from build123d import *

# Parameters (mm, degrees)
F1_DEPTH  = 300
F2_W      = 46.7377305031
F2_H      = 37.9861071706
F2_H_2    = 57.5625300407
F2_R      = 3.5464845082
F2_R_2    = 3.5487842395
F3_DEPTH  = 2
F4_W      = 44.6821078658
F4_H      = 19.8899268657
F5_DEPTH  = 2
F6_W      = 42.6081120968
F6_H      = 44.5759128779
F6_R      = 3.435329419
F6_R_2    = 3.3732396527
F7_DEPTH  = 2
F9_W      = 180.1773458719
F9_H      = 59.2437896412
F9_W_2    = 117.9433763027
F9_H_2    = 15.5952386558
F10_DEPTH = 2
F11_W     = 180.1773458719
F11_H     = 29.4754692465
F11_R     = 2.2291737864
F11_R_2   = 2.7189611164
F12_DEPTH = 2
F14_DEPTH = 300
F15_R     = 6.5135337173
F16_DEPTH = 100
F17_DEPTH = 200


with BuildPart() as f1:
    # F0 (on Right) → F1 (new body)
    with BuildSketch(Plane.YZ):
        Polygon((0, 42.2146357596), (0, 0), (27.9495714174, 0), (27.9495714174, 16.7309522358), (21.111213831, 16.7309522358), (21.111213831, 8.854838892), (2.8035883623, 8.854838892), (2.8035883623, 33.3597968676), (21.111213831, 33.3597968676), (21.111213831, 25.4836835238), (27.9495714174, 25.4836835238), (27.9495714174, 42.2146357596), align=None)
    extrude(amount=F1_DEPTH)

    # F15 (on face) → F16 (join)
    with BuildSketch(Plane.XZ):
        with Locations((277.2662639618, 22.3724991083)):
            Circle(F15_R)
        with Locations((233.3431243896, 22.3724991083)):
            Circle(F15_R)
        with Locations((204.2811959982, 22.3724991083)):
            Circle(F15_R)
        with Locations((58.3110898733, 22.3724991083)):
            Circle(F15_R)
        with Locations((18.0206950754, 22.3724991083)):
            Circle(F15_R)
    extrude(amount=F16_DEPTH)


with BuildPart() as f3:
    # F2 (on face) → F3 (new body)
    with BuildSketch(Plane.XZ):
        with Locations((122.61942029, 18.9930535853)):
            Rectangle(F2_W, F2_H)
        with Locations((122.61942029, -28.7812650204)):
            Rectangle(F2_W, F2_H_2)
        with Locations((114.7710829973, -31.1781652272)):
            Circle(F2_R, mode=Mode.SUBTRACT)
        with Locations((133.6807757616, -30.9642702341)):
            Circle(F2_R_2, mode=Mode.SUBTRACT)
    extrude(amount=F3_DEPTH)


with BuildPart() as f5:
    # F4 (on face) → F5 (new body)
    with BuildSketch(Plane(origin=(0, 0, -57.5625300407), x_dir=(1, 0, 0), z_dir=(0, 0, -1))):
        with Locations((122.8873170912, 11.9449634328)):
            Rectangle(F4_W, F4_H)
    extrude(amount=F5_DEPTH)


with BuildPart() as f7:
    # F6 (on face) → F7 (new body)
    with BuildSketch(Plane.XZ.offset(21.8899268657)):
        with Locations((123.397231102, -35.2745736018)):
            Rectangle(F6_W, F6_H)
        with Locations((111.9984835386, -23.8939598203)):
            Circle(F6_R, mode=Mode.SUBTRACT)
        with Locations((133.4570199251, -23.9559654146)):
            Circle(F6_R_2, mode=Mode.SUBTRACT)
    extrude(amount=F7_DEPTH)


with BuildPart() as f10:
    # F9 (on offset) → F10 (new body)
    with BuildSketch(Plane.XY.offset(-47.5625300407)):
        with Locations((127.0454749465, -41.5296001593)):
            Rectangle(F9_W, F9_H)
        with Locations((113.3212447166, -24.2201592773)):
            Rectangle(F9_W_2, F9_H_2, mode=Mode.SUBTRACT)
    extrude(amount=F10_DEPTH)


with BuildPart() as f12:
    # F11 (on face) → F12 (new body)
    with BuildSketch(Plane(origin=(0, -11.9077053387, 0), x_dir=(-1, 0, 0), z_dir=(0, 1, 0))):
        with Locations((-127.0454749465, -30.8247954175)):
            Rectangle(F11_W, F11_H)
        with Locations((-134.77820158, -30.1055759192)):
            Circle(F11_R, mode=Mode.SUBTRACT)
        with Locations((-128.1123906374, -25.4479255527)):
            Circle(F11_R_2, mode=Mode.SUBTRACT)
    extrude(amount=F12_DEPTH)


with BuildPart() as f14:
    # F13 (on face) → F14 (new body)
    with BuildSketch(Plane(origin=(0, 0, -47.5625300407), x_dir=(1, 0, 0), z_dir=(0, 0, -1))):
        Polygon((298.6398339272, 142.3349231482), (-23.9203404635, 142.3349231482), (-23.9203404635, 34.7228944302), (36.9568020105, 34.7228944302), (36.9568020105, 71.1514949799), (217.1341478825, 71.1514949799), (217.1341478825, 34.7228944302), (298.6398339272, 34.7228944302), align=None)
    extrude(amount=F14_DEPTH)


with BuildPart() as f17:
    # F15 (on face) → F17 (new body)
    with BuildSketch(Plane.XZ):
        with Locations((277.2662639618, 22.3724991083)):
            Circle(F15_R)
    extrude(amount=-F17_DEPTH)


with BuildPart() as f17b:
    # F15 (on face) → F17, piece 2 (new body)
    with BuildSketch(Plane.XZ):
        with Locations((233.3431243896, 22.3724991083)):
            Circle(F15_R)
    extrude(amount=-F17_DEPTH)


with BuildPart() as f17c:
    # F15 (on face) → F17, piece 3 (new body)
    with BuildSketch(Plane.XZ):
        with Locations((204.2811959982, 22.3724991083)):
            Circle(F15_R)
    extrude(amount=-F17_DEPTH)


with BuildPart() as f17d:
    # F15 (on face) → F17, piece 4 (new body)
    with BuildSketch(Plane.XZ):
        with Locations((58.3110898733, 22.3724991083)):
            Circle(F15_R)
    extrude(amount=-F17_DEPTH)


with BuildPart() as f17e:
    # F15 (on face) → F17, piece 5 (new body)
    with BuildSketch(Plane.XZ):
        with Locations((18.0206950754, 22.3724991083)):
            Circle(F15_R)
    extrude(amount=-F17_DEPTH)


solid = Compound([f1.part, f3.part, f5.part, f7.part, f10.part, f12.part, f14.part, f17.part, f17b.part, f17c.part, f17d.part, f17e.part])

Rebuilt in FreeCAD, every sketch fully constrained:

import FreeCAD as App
import Part
import Sketcher

V = App.Vector
Q = App.Units.Quantity


def add_polygon(sketch, points):
    """Adds a closed chain of lines whose ends are joined by coincident constraints."""
    first, n = sketch.GeometryCount, len(points)
    for a, b in zip(points, points[1:] + points[:1]):
        sketch.addGeometry(Part.LineSegment(App.Vector(*a, 0), App.Vector(*b, 0)), False)
    for i in range(n):
        sketch.addConstraint(Sketcher.Constraint("Coincident", first + i, 2, first + (i + 1) % n, 1))

doc = App.newDocument("Part")
body = doc.addObject("PartDesign::Body", "Body")

sketch1 = body.newObject("Sketcher::SketchObject", "Sketch")
sketch1.AttachmentSupport = (doc.getObject("YZ_Plane"), [""])
sketch1.MapMode = "FlatFace"
add_polygon(sketch1, [(0, 42), (0, 0), (28, 0), (28, 17), (21, 17), (21, 9), (3, 9), (3, 33), (21, 33), (21, 25), (28, 25), (28, 42)])
sketch1.addConstraint([
    Sketcher.Constraint("Vertical", 0),
    Sketcher.Constraint("Horizontal", 1),
    Sketcher.Constraint("Vertical", 2),
    Sketcher.Constraint("Horizontal", 3),
    Sketcher.Constraint("Vertical", 4),
    Sketcher.Constraint("Horizontal", 5),
    Sketcher.Constraint("Vertical", 6),
    Sketcher.Constraint("Horizontal", 7),
    Sketcher.Constraint("Vertical", 8),
    Sketcher.Constraint("Horizontal", 9),
    Sketcher.Constraint("Vertical", 10),
    Sketcher.Constraint("Horizontal", 11),
    Sketcher.Constraint("Coincident", 0, 2, -1, 1),
    Sketcher.Constraint("Vertical", 4, 2, 7, 2),
    Sketcher.Constraint("Vertical", 2, 2, 9, 2),
    Sketcher.Constraint("Equal", 4, 8),
    Sketcher.Constraint("Equal", 2, 10),
    Sketcher.Constraint("DistanceX", 1, 1, 1, 2, Q("27.949571 mm")),
    Sketcher.Constraint("DistanceX", 3, 2, 3, 1, Q("6.838358 mm")),
    Sketcher.Constraint("DistanceX", 5, 2, 5, 1, Q("18.307625 mm")),
    Sketcher.Constraint("DistanceY", 0, 2, 0, 1, Q("42.214636 mm")),
    Sketcher.Constraint("DistanceY", 2, 1, 2, 2, Q("16.730952 mm")),
    Sketcher.Constraint("DistanceY", 4, 2, 4, 1, Q("7.876113 mm")),
])
pad1 = body.newObject("PartDesign::Pad", "Pad")
pad1.Profile = sketch1
pad1.Length = 300

sketch2 = body.newObject("Sketcher::SketchObject", "Sketch001")
sketch2.AttachmentSupport = (doc.getObject("XZ_Plane"), [""])
sketch2.MapMode = "FlatFace"
sketch2.addGeometry([
    Part.Circle(V(277, 22, 0), V(0, 0, 1), 7),
    Part.Circle(V(233, 22, 0), V(0, 0, 1), 7),
    Part.Circle(V(204, 22, 0), V(0, 0, 1), 7),
    Part.Circle(V(58, 22, 0), V(0, 0, 1), 7),
    Part.Circle(V(18, 22, 0), V(0, 0, 1), 7),
], False)
sketch2.addConstraint([
    Sketcher.Constraint("Equal", 0, 1),
    Sketcher.Constraint("Equal", 1, 2),
    Sketcher.Constraint("Equal", 2, 3),
    Sketcher.Constraint("Equal", 3, 4),
    Sketcher.Constraint("Horizontal", 0, 3, 1, 3),
    Sketcher.Constraint("Horizontal", 1, 3, 2, 3),
    Sketcher.Constraint("Horizontal", 2, 3, 3, 3),
    Sketcher.Constraint("Horizontal", 3, 3, 4, 3),
    Sketcher.Constraint("Diameter", 0, Q("13.027067 mm")),
    Sketcher.Constraint("DistanceY", -1, 1, 0, 3, Q("22.372499 mm")),
    Sketcher.Constraint("DistanceX", 4, 3, 2, 3, Q("186.260501 mm")),
    Sketcher.Constraint("DistanceX", -1, 1, 3, 3, Q("58.31109 mm")),
    Sketcher.Constraint("DistanceX", 1, 3, 0, 3, Q("43.92314 mm")),
    Sketcher.Constraint("DistanceX", 2, 3, 1, 3, Q("29.061928 mm")),
    Sketcher.Constraint("DistanceX", -1, 1, 0, 3, Q("277.266264 mm")),
])
pad2 = body.newObject("PartDesign::Pad", "Pad001")
pad2.Profile = sketch2
pad2.Length = 100
body2 = doc.addObject("PartDesign::Body", "Body001")

sketch3 = body2.newObject("Sketcher::SketchObject", "Sketch002")
sketch3.AttachmentSupport = (doc.getObject("XZ_Plane001"), [""])
sketch3.MapMode = "FlatFace"
add_polygon(sketch3, [(99.3, 38), (99.3, -57.6), (146, -57.6), (146, 38)])
sketch3.addGeometry(Part.Circle(V(114.8, -31.2, 0), V(0, 0, 1), 3.5), False)
sketch3.addGeometry(Part.Circle(V(133.7, -31, 0), V(0, 0, 1), 3.5), False)
sketch3.addConstraint([
    Sketcher.Constraint("Vertical", 0),
    Sketcher.Constraint("Horizontal", 1),
    Sketcher.Constraint("Vertical", 2),
    Sketcher.Constraint("Horizontal", 3),
    Sketcher.Constraint("Diameter", 4, Q("7.092969 mm")),
    Sketcher.Constraint("Diameter", 5, Q("7.097568 mm")),
    Sketcher.Constraint("DistanceX", 1, 1, 1, 2, Q("46.737731 mm")),
    Sketcher.Constraint("DistanceY", 0, 2, 0, 1, Q("95.548637 mm")),
    Sketcher.Constraint("DistanceY", 5, 3, -1, 1, Q("30.96427 mm")),
    Sketcher.Constraint("DistanceY", 0, 2, -1, 1, Q("57.56253 mm")),
    Sketcher.Constraint("DistanceX", 0, 2, 5, 3, Q("34.430221 mm")),
    Sketcher.Constraint("DistanceX", -1, 1, 4, 3, Q("114.771083 mm")),
    Sketcher.Constraint("DistanceY", 4, 3, -1, 1, Q("31.178165 mm")),
    Sketcher.Constraint("DistanceX", -1, 1, 5, 3, Q("133.680776 mm")),
])
pad3 = body2.newObject("PartDesign::Pad", "Pad002")
pad3.Profile = sketch3
pad3.Length = 2
body3 = doc.addObject("PartDesign::Body", "Body002")

sketch4 = body3.newObject("Sketcher::SketchObject", "Sketch003")
sketch4.AttachmentSupport = (doc.getObject("XY_Plane002"), [""])
sketch4.MapMode = "FlatFace"
sketch4.AttachmentOffset = App.Placement(V(0, 0, -57.56253), App.Rotation())
add_polygon(sketch4, [(101, -22), (101, -2), (145, -2), (145, -22)])
sketch4.addConstraint([
    Sketcher.Constraint("Vertical", 0),
    Sketcher.Constraint("Horizontal", 1),
    Sketcher.Constraint("Vertical", 2),
    Sketcher.Constraint("Horizontal", 3),
    Sketcher.Constraint("DistanceY", 0, 2, -1, 1, Q("2 mm")),
    Sketcher.Constraint("DistanceX", 1, 1, 1, 2, Q("44.682108 mm")),
    Sketcher.Constraint("DistanceY", 0, 1, 0, 2, Q("19.889927 mm")),
    Sketcher.Constraint("DistanceX", -1, 1, 1, 2, Q("145.228371 mm")),
])
pad4 = body3.newObject("PartDesign::Pad", "Pad003")
pad4.Profile = sketch4
pad4.Length = 2
pad4.Reversed = True
body4 = doc.addObject("PartDesign::Body", "Body003")

sketch5 = body4.newObject("Sketcher::SketchObject", "Sketch004")
sketch5.AttachmentSupport = (doc.getObject("XZ_Plane003"), [""])
sketch5.MapMode = "FlatFace"
sketch5.AttachmentOffset = App.Placement(V(0, 0, 21.889927), App.Rotation())
add_polygon(sketch5, [(102.1, -13), (102.1, -57.6), (144.7, -57.6), (144.7, -13)])
sketch5.addGeometry(Part.Circle(V(133.5, -24, 0), V(0, 0, 1), 3.4), False)
sketch5.addGeometry(Part.Circle(V(112, -23.9, 0), V(0, 0, 1), 3.4), False)
sketch5.addConstraint([
    Sketcher.Constraint("Vertical", 0),
    Sketcher.Constraint("Horizontal", 1),
    Sketcher.Constraint("Vertical", 2),
    Sketcher.Constraint("Horizontal", 3),
    Sketcher.Constraint("Diameter", 4, Q("6.746479 mm")),
    Sketcher.Constraint("Diameter", 5, Q("6.870659 mm")),
    Sketcher.Constraint("DistanceX", 1, 1, 1, 2, Q("42.608112 mm")),
    Sketcher.Constraint("DistanceY", 0, 2, 0, 1, Q("44.575913 mm")),
    Sketcher.Constraint("DistanceX", -1, 1, 4, 3, Q("133.45702 mm")),
    Sketcher.Constraint("DistanceY", 5, 3, -1, 1, Q("23.89396 mm")),
    Sketcher.Constraint("DistanceY", 0, 2, -1, 1, Q("57.56253 mm")),
    Sketcher.Constraint("DistanceX", 0, 2, 5, 3, Q("9.905308 mm")),
    Sketcher.Constraint("DistanceY", 4, 3, 2, 2, Q("10.969348 mm")),
    Sketcher.Constraint("DistanceX", -1, 1, 5, 3, Q("111.998484 mm")),
])
pad5 = body4.newObject("PartDesign::Pad", "Pad004")
pad5.Profile = sketch5
pad5.Length = 2
body5 = doc.addObject("PartDesign::Body", "Body004")

sketch6 = body5.newObject("Sketcher::SketchObject", "Sketch005")
sketch6.AttachmentSupport = (doc.getObject("XY_Plane004"), [""])
sketch6.MapMode = "FlatFace"
sketch6.AttachmentOffset = App.Placement(V(0, 0, -47.56253), App.Rotation())
add_polygon(sketch6, [(37, -12), (37, -71), (217, -71), (217, -12)])
add_polygon(sketch6, [(172, -32), (54, -32), (54, -16), (172, -16)])
sketch6.addConstraint([
    Sketcher.Constraint("Vertical", 0),
    Sketcher.Constraint("Horizontal", 1),
    Sketcher.Constraint("Vertical", 2),
    Sketcher.Constraint("Horizontal", 3),
    Sketcher.Constraint("Horizontal", 4),
    Sketcher.Constraint("Vertical", 5),
    Sketcher.Constraint("Horizontal", 6),
    Sketcher.Constraint("Vertical", 7),
    Sketcher.Constraint("DistanceY", 0, 2, 0, 1, Q("59.24379 mm")),
    Sketcher.Constraint("DistanceY", 5, 1, 5, 2, Q("15.595239 mm")),
    Sketcher.Constraint("DistanceX", 1, 1, 1, 2, Q("180.177346 mm")),
    Sketcher.Constraint("DistanceX", 4, 2, 4, 1, Q("117.943376 mm")),
    Sketcher.Constraint("DistanceY", 4, 2, -1, 1, Q("32.017779 mm")),
    Sketcher.Constraint("DistanceX", 4, 2, 2, 2, Q("162.784591 mm")),
    Sketcher.Constraint("DistanceX", -1, 1, 0, 2, Q("36.956802 mm")),
    Sketcher.Constraint("DistanceY", 0, 2, -1, 1, Q("71.151495 mm")),
])
pad6 = body5.newObject("PartDesign::Pad", "Pad005")
pad6.Profile = sketch6
pad6.Length = 2
body6 = doc.addObject("PartDesign::Body", "Body005")

sketch7 = body6.newObject("Sketcher::SketchObject", "Sketch006")
sketch7.AttachmentSupport = (doc.getObject("XZ_Plane005"), [""])
sketch7.MapMode = "FlatFace"
sketch7.AttachmentOffset = App.Placement(V(0, 0, 11.907705), App.Rotation())
add_polygon(sketch7, [(217.1, -16.1), (217.1, -45.6), (37, -45.6), (37, -16.1)])
sketch7.addGeometry(Part.Circle(V(134.8, -30.1, 0), V(0, 0, 1), 2.2), False)
sketch7.addGeometry(Part.Circle(V(128.1, -25.4, 0), V(0, 0, 1), 2.7), False)
sketch7.addConstraint([
    Sketcher.Constraint("Vertical", 0),
    Sketcher.Constraint("Horizontal", 1),
    Sketcher.Constraint("Vertical", 2),
    Sketcher.Constraint("Horizontal", 3),
    Sketcher.Constraint("Diameter", 4, Q("4.458348 mm")),
    Sketcher.Constraint("Diameter", 5, Q("5.437922 mm")),
    Sketcher.Constraint("DistanceY", 0, 2, 0, 1, Q("29.475469 mm")),
    Sketcher.Constraint("DistanceX", -1, 1, 4, 3, Q("134.778202 mm")),
    Sketcher.Constraint("DistanceX", 1, 2, 4, 3, Q("97.8214 mm")),
    Sketcher.Constraint("DistanceX", 1, 2, 1, 1, Q("180.177346 mm")),
    Sketcher.Constraint("DistanceX", -1, 1, 5, 3, Q("128.112391 mm")),
    Sketcher.Constraint("DistanceY", 0, 2, -1, 1, Q("45.56253 mm")),
    Sketcher.Constraint("DistanceY", 4, 3, 5, 3, Q("4.65765 mm")),
    Sketcher.Constraint("DistanceY", 4, 3, -1, 1, Q("30.105576 mm")),
])
pad7 = body6.newObject("PartDesign::Pad", "Pad006")
pad7.Profile = sketch7
pad7.Length = 2
pad7.Reversed = True
body7 = doc.addObject("PartDesign::Body", "Body006")

sketch8 = body7.newObject("Sketcher::SketchObject", "Sketch007")
sketch8.AttachmentSupport = (doc.getObject("XY_Plane006"), [""])
sketch8.MapMode = "FlatFace"
sketch8.AttachmentOffset = App.Placement(V(0, 0, -47.56253), App.Rotation())
add_polygon(sketch8, [(299, -142), (-24, -142), (-24, -35), (37, -35), (37, -71), (217, -71), (217, -35), (299, -35)])
sketch8.addConstraint([
    Sketcher.Constraint("Horizontal", 0),
    Sketcher.Constraint("Vertical", 1),
    Sketcher.Constraint("Horizontal", 2),
    Sketcher.Constraint("Vertical", 3),
    Sketcher.Constraint("Horizontal", 4),
    Sketcher.Constraint("Vertical", 5),
    Sketcher.Constraint("Horizontal", 6),
    Sketcher.Constraint("Vertical", 7),
    Sketcher.Constraint("Horizontal", 2, 2, 5, 2),
    Sketcher.Constraint("DistanceY", 3, 2, 3, 1, Q("36.428601 mm")),
    Sketcher.Constraint("DistanceY", 1, 1, 1, 2, Q("107.612029 mm")),
    Sketcher.Constraint("DistanceX", 0, 2, 0, 1, Q("322.560174 mm")),
    Sketcher.Constraint("DistanceX", 2, 1, 2, 2, Q("60.877142 mm")),
    Sketcher.Constraint("DistanceX", 4, 1, 4, 2, Q("180.177346 mm")),
    Sketcher.Constraint("DistanceX", 0, 2, -1, 1, Q("23.92034 mm")),
    Sketcher.Constraint("DistanceY", 0, 2, -1, 1, Q("142.334923 mm")),
])
pad8 = body7.newObject("PartDesign::Pad", "Pad007")
pad8.Profile = sketch8
pad8.Length = 300
pad8.Reversed = True
body8 = doc.addObject("PartDesign::Body", "Body007")

sketch9 = body8.newObject("Sketcher::SketchObject", "Sketch008")
sketch9.AttachmentSupport = (doc.getObject("XZ_Plane007"), [""])
sketch9.MapMode = "FlatFace"
sketch9.addGeometry(Part.Circle(V(277, 22, 0), V(0, 0, 1), 7), False)
sketch9.addConstraint([
    Sketcher.Constraint("Diameter", 0, Q("13.027067 mm")),
    Sketcher.Constraint("DistanceY", -1, 1, 0, 3, Q("22.372499 mm")),
    Sketcher.Constraint("DistanceX", -1, 1, 0, 3, Q("277.266264 mm")),
])
pad9 = body8.newObject("PartDesign::Pad", "Pad008")
pad9.Profile = sketch9
pad9.Length = 200
pad9.Reversed = True
body9 = doc.addObject("PartDesign::Body", "Body008")

sketch10 = body9.newObject("Sketcher::SketchObject", "Sketch009")
sketch10.AttachmentSupport = (doc.getObject("XZ_Plane008"), [""])
sketch10.MapMode = "FlatFace"
sketch10.addGeometry(Part.Circle(V(233, 22, 0), V(0, 0, 1), 7), False)
sketch10.addConstraint([
    Sketcher.Constraint("Diameter", 0, Q("13.027067 mm")),
    Sketcher.Constraint("DistanceY", -1, 1, 0, 3, Q("22.372499 mm")),
    Sketcher.Constraint("DistanceX", -1, 1, 0, 3, Q("233.343124 mm")),
])
pad10 = body9.newObject("PartDesign::Pad", "Pad009")
pad10.Profile = sketch10
pad10.Length = 200
pad10.Reversed = True
body10 = doc.addObject("PartDesign::Body", "Body009")

sketch11 = body10.newObject("Sketcher::SketchObject", "Sketch010")
sketch11.AttachmentSupport = (doc.getObject("XZ_Plane009"), [""])
sketch11.MapMode = "FlatFace"
sketch11.addGeometry(Part.Circle(V(204, 22, 0), V(0, 0, 1), 7), False)
sketch11.addConstraint([
    Sketcher.Constraint("Diameter", 0, Q("13.027067 mm")),
    Sketcher.Constraint("DistanceY", -1, 1, 0, 3, Q("22.372499 mm")),
    Sketcher.Constraint("DistanceX", -1, 1, 0, 3, Q("204.281196 mm")),
])
pad11 = body10.newObject("PartDesign::Pad", "Pad010")
pad11.Profile = sketch11
pad11.Length = 200
pad11.Reversed = True
body11 = doc.addObject("PartDesign::Body", "Body010")

sketch12 = body11.newObject("Sketcher::SketchObject", "Sketch011")
sketch12.AttachmentSupport = (doc.getObject("XZ_Plane010"), [""])
sketch12.MapMode = "FlatFace"
sketch12.addGeometry(Part.Circle(V(58, 22, 0), V(0, 0, 1), 7), False)
sketch12.addConstraint([
    Sketcher.Constraint("Diameter", 0, Q("13.027067 mm")),
    Sketcher.Constraint("DistanceY", -1, 1, 0, 3, Q("22.372499 mm")),
    Sketcher.Constraint("DistanceX", -1, 1, 0, 3, Q("58.31109 mm")),
])
pad12 = body11.newObject("PartDesign::Pad", "Pad011")
pad12.Profile = sketch12
pad12.Length = 200
pad12.Reversed = True
body12 = doc.addObject("PartDesign::Body", "Body011")

sketch13 = body12.newObject("Sketcher::SketchObject", "Sketch012")
sketch13.AttachmentSupport = (doc.getObject("XZ_Plane011"), [""])
sketch13.MapMode = "FlatFace"
sketch13.addGeometry(Part.Circle(V(18, 22, 0), V(0, 0, 1), 7), False)
sketch13.addConstraint([
    Sketcher.Constraint("Diameter", 0, Q("13.027067 mm")),
    Sketcher.Constraint("DistanceY", -1, 1, 0, 3, Q("22.372499 mm")),
    Sketcher.Constraint("DistanceX", -1, 1, 0, 3, Q("18.020695 mm")),
])
pad13 = body12.newObject("PartDesign::Pad", "Pad012")
pad13.Profile = sketch13
pad13.Length = 200
pad13.Reversed = True

doc.recompute()
